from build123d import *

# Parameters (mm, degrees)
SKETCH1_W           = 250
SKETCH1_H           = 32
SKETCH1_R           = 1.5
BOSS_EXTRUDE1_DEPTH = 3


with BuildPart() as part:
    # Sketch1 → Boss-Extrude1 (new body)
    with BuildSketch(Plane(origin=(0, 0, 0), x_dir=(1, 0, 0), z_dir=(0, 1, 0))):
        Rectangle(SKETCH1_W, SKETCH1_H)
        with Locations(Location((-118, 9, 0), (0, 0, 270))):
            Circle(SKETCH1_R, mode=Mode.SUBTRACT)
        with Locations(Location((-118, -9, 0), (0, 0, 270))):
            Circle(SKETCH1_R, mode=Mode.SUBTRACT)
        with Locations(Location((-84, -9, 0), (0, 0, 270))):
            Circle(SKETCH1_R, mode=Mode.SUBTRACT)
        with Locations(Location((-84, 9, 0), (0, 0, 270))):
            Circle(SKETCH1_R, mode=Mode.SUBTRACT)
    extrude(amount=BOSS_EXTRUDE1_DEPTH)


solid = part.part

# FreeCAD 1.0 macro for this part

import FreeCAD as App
import Part
import Sketcher
from FreeCAD import Vector
Q = App.Units.Quantity


def add_polygon(sketch, points):
    """Adds a closed chain of lines whose ends are joined by coincident constraints."""
    first, n = sketch.GeometryCount, len(points)
    for a, b in zip(points, points[1:] + points[:1]):
        sketch.addGeometry(Part.LineSegment(App.Vector(*a, 0), App.Vector(*b, 0)), False)
    for i in range(n):
        sketch.addConstraint(Sketcher.Constraint("Coincident", first + i, 2, first + (i + 1) % n, 1))

doc = App.newDocument("Part")
body = doc.addObject("PartDesign::Body", "Body")

sketch1 = body.newObject("Sketcher::SketchObject", "Sketch")
sketch1.AttachmentSupport = (doc.getObject("XZ_Plane"), [""])
sketch1.MapMode = "FlatFace"
add_polygon(sketch1, [(-125, -16), (-125, 16), (125, 16), (125, -16)])
sketch1.addGeometry(Part.Circle(Vector(-118, 9, 0), Vector(0, 0, 1), 1.5), False)
sketch1.addGeometry(Part.Circle(Vector(-84, 9, 0), Vector(0, 0, 1), 1.5), False)
sketch1.addGeometry(Part.Circle(Vector(-118, -9, 0), Vector(0, 0, 1), 1.5), False)
sketch1.addGeometry(Part.Circle(Vector(-84, -9, 0), Vector(0, 0, 1), 1.5), False)
sketch1.addConstraint([
    Sketcher.Constraint("Vertical", 0),
    Sketcher.Constraint("Horizontal", 1),
    Sketcher.Constraint("Vertical", 2),
    Sketcher.Constraint("Horizontal", 3),
    Sketcher.Constraint("Equal", 4, 5),
    Sketcher.Constraint("Equal", 5, 6),
    Sketcher.Constraint("Equal", 6, 7),
    Sketcher.Constraint("Symmetric", 0, 2, 2, 2, -1, 1),
    Sketcher.Constraint("Symmetric", 4, 3, 6, 3, -1),
    Sketcher.Constraint("Symmetric", 5, 3, 7, 3, -1),
    Sketcher.Constraint("Horizontal", 4, 3, 5, 3),
    Sketcher.Constraint("Diameter", 4, Q("3 mm")),
    Sketcher.Constraint("DistanceX", 1, 1, 1, 2, Q("250 mm")),
    Sketcher.Constraint("DistanceY", 0, 1, 0, 2, Q("32 mm")),
    Sketcher.Constraint("DistanceX", 4, 3, -1, 1, Q("118 mm")),
    Sketcher.Constraint("DistanceY", -1, 1, 4, 3, Q("9 mm")),
    Sketcher.Constraint("DistanceX", 5, 3, -1, 1, Q("84 mm")),
])
pad1 = body.newObject("PartDesign::Pad", "Pad")
pad1.Profile = sketch1
pad1.Length = 3
pad1.Reversed = True

doc.recompute()
